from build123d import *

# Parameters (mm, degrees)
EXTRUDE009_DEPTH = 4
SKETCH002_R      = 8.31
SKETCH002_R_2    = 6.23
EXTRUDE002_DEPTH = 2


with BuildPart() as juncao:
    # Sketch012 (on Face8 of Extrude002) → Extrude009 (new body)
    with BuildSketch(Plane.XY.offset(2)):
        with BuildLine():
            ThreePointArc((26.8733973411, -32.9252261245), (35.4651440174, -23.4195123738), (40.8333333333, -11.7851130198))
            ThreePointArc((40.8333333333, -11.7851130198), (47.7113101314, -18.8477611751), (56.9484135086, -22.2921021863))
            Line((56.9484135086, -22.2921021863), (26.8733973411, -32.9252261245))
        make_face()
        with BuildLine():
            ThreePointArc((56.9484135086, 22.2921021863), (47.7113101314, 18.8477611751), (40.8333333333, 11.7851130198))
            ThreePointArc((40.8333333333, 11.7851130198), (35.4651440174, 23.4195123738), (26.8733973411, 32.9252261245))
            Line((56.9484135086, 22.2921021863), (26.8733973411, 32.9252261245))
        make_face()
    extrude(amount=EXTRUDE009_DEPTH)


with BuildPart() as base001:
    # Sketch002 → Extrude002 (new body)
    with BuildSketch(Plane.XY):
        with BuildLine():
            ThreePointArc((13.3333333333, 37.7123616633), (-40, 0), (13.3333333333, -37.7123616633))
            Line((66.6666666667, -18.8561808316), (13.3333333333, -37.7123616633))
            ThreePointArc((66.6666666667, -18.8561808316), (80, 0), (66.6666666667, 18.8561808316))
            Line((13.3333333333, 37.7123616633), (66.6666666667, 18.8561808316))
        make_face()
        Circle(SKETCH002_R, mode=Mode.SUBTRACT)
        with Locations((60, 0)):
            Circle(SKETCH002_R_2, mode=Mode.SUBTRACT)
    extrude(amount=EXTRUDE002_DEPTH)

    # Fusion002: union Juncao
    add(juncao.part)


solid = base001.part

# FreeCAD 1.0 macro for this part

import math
import FreeCAD as App
import Part
import Sketcher

V = App.Vector
Q = App.Units.Quantity

doc = App.newDocument("Part")
body = doc.addObject("PartDesign::Body", "Body")
body.AllowCompound = True

# Sketch on XY plane
sketch1 = body.newObject("Sketcher::SketchObject", "Sketch")
sketch1.AttachmentSupport = (doc.getObject("XY_Plane"), [""])
sketch1.MapMode = "FlatFace"
sketch1.AttachmentOffset = App.Placement(V(0, 0, 2), App.Rotation())
sketch1.addGeometry(Part.ArcOfCircle(Part.Circle(V(0, 0, 0), V(0, 0, 1), 42), math.radians(-51), math.radians(-16)), False)
sketch1.addGeometry(Part.LineSegment(V(27, -33, 0), V(57, -22, 0)), False)
sketch1.addGeometry(Part.ArcOfCircle(Part.Circle(V(60, 0, 0), V(0, 0, 1), 22), math.radians(-148), math.radians(-98)), False)
sketch1.addGeometry(Part.ArcOfCircle(Part.Circle(V(60, 0, 0), V(0, 0, 1), 22), math.radians(98), math.radians(148)), False)
sketch1.addGeometry(Part.LineSegment(V(57, 22, 0), V(27, 33, 0)), False)
sketch1.addGeometry(Part.ArcOfCircle(Part.Circle(V(0, 0, 0), V(0, 0, 1), 42), math.radians(16), math.radians(51)), False)
sketch1.addConstraint(Sketcher.Constraint("Coincident", 0, 1, 1, 1))
sketch1.addConstraint(Sketcher.Constraint("Coincident", 1, 2, 2, 2))
sketch1.addConstraint(Sketcher.Constraint("Coincident", 2, 1, 0, 2))
sketch1.addConstraint(Sketcher.Constraint("Coincident", 3, 1, 4, 1))
sketch1.addConstraint(Sketcher.Constraint("Coincident", 4, 2, 5, 2))
sketch1.addConstraint(Sketcher.Constraint("Coincident", 5, 1, 3, 2))
sketch1.addConstraint(Sketcher.Constraint("Coincident", 0, 3, -1, 1))
sketch1.addConstraint(Sketcher.Constraint("Coincident", 5, 3, -1, 1))
sketch1.addConstraint(Sketcher.Constraint("Coincident", 3, 3, 2, 3))
sketch1.addConstraint(Sketcher.Constraint("Equal", 2, 3))
sketch1.addConstraint(Sketcher.Constraint("Equal", 0, 5))
sketch1.addConstraint(Sketcher.Constraint("Symmetric", 1, 2, 3, 1, -1))
sketch1.addConstraint(Sketcher.Constraint("Vertical", 0, 1, 4, 2))
sketch1.addConstraint(Sketcher.Constraint("Radius", 0, Q("42.5 mm")))
sketch1.addConstraint(Sketcher.Constraint("Radius", 2, Q("22.5 mm")))
sketch1.addConstraint(Sketcher.Constraint("DistanceX", -1, 1, 2, 3, Q("60 mm")))
sketch1.addConstraint(Sketcher.Constraint("Distance", 1, Q("31.899372 mm")))
sketch1.addConstraint(Sketcher.Constraint("DistanceX", 2, 1, 1, 2, Q("16.11508 mm")))
pad1 = body.newObject("PartDesign::Pad", "Pad")
pad1.Profile = sketch1
pad1.Length = 4
body2 = doc.addObject("PartDesign::Body", "Body001")

# Sketch on XY plane
sketch2 = body2.newObject("Sketcher::SketchObject", "Sketch001")
sketch2.AttachmentSupport = (doc.getObject("XY_Plane001"), [""])
sketch2.MapMode = "FlatFace"
sketch2.addGeometry(Part.ArcOfCircle(Part.Circle(V(0, 0, 0), V(0, 0, 1), 40), math.radians(71), math.radians(289)), False)
sketch2.addGeometry(Part.LineSegment(V(13, -38, 0), V(67, -19, 0)), False)
sketch2.addGeometry(Part.ArcOfCircle(Part.Circle(V(60, 0, 0), V(0, 0, 1), 20), math.radians(-71), math.radians(71)), False)
sketch2.addGeometry(Part.LineSegment(V(67, 19, 0), V(13, 38, 0)), False)
sketch2.addGeometry(Part.Circle(V(0, 0, 0), V(0, 0, 1), 8), False)
sketch2.addGeometry(Part.Circle(V(60, 0, 0), V(0, 0, 1), 6), False)
sketch2.addConstraint(Sketcher.Constraint("Tangent", 0, 2, 1, 1))
sketch2.addConstraint(Sketcher.Constraint("Tangent", 1, 2, 2, 1))
sketch2.addConstraint(Sketcher.Constraint("Tangent", 2, 2, 3, 1))
sketch2.addConstraint(Sketcher.Constraint("Tangent", 3, 2, 0, 1))
sketch2.addConstraint(Sketcher.Constraint("Coincident", 0, 3, -1, 1))
sketch2.addConstraint(Sketcher.Constraint("Coincident", 4, 3, -1, 1))
sketch2.addConstraint(Sketcher.Constraint("Coincident", 5, 3, 2, 3))
sketch2.addConstraint(Sketcher.Constraint("PointOnObject", 2, 3, -1))
sketch2.addConstraint(Sketcher.Constraint("Radius", 0, Q("40 mm")))
sketch2.addConstraint(Sketcher.Constraint("Radius", 2, Q("20 mm")))
sketch2.addConstraint(Sketcher.Constraint("Diameter", 4, Q("16.62 mm")))
sketch2.addConstraint(Sketcher.Constraint("Diameter", 5, Q("12.46 mm")))
sketch2.addConstraint(Sketcher.Constraint("DistanceX", -1, 1, 2, 3, Q("60 mm")))
pad2 = body2.newObject("PartDesign::Pad", "Pad001")
pad2.Profile = sketch2
pad2.Length = 2
doc.recompute()

boolean = body2.newObject("PartDesign::Boolean", "Boolean")
boolean.Type = "Fuse"
boolean.addObjects([body])

doc.recompute()
